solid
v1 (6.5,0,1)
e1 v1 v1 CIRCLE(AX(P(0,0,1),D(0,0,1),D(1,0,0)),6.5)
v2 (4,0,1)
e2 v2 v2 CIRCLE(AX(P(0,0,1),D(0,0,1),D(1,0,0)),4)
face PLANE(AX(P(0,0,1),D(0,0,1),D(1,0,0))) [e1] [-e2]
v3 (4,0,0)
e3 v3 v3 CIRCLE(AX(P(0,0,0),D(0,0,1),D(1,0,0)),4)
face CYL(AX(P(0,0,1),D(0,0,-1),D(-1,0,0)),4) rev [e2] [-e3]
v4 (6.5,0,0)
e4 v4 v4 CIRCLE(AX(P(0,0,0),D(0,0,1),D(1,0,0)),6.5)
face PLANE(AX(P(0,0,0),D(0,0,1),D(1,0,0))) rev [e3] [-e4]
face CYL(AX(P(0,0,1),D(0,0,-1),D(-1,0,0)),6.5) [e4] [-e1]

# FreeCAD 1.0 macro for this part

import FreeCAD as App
import Part
import Sketcher
from FreeCAD import Vector

doc = App.newDocument("Part")
body = doc.addObject("PartDesign::Body", "Body")

sketch1 = body.newObject("Sketcher::SketchObject", "Sketch")
sketch1.AttachmentSupport = (doc.getObject("XY_Plane"), [""])
sketch1.MapMode = "FlatFace"
sketch1.addGeometry([
    Part.Circle(Vector(0, 0, 0), Vector(0, 0, 1), 6.5),
    Part.Circle(Vector(0, 0, 0), Vector(0, 0, 1), 4),
], False)
sketch1.addConstraint([
    Sketcher.Constraint("Coincident", 0, 3, -1, 1),
    Sketcher.Constraint("Coincident", 1, 3, -1, 1),
    Sketcher.Constraint("Diameter", 0, 13.0),
    Sketcher.Constraint("Diameter", 1, 8.0),
])
pad1 = body.newObject("PartDesign::Pad", "Pad")
pad1.Profile = sketch1
pad1.Length = 1

doc.recompute()
